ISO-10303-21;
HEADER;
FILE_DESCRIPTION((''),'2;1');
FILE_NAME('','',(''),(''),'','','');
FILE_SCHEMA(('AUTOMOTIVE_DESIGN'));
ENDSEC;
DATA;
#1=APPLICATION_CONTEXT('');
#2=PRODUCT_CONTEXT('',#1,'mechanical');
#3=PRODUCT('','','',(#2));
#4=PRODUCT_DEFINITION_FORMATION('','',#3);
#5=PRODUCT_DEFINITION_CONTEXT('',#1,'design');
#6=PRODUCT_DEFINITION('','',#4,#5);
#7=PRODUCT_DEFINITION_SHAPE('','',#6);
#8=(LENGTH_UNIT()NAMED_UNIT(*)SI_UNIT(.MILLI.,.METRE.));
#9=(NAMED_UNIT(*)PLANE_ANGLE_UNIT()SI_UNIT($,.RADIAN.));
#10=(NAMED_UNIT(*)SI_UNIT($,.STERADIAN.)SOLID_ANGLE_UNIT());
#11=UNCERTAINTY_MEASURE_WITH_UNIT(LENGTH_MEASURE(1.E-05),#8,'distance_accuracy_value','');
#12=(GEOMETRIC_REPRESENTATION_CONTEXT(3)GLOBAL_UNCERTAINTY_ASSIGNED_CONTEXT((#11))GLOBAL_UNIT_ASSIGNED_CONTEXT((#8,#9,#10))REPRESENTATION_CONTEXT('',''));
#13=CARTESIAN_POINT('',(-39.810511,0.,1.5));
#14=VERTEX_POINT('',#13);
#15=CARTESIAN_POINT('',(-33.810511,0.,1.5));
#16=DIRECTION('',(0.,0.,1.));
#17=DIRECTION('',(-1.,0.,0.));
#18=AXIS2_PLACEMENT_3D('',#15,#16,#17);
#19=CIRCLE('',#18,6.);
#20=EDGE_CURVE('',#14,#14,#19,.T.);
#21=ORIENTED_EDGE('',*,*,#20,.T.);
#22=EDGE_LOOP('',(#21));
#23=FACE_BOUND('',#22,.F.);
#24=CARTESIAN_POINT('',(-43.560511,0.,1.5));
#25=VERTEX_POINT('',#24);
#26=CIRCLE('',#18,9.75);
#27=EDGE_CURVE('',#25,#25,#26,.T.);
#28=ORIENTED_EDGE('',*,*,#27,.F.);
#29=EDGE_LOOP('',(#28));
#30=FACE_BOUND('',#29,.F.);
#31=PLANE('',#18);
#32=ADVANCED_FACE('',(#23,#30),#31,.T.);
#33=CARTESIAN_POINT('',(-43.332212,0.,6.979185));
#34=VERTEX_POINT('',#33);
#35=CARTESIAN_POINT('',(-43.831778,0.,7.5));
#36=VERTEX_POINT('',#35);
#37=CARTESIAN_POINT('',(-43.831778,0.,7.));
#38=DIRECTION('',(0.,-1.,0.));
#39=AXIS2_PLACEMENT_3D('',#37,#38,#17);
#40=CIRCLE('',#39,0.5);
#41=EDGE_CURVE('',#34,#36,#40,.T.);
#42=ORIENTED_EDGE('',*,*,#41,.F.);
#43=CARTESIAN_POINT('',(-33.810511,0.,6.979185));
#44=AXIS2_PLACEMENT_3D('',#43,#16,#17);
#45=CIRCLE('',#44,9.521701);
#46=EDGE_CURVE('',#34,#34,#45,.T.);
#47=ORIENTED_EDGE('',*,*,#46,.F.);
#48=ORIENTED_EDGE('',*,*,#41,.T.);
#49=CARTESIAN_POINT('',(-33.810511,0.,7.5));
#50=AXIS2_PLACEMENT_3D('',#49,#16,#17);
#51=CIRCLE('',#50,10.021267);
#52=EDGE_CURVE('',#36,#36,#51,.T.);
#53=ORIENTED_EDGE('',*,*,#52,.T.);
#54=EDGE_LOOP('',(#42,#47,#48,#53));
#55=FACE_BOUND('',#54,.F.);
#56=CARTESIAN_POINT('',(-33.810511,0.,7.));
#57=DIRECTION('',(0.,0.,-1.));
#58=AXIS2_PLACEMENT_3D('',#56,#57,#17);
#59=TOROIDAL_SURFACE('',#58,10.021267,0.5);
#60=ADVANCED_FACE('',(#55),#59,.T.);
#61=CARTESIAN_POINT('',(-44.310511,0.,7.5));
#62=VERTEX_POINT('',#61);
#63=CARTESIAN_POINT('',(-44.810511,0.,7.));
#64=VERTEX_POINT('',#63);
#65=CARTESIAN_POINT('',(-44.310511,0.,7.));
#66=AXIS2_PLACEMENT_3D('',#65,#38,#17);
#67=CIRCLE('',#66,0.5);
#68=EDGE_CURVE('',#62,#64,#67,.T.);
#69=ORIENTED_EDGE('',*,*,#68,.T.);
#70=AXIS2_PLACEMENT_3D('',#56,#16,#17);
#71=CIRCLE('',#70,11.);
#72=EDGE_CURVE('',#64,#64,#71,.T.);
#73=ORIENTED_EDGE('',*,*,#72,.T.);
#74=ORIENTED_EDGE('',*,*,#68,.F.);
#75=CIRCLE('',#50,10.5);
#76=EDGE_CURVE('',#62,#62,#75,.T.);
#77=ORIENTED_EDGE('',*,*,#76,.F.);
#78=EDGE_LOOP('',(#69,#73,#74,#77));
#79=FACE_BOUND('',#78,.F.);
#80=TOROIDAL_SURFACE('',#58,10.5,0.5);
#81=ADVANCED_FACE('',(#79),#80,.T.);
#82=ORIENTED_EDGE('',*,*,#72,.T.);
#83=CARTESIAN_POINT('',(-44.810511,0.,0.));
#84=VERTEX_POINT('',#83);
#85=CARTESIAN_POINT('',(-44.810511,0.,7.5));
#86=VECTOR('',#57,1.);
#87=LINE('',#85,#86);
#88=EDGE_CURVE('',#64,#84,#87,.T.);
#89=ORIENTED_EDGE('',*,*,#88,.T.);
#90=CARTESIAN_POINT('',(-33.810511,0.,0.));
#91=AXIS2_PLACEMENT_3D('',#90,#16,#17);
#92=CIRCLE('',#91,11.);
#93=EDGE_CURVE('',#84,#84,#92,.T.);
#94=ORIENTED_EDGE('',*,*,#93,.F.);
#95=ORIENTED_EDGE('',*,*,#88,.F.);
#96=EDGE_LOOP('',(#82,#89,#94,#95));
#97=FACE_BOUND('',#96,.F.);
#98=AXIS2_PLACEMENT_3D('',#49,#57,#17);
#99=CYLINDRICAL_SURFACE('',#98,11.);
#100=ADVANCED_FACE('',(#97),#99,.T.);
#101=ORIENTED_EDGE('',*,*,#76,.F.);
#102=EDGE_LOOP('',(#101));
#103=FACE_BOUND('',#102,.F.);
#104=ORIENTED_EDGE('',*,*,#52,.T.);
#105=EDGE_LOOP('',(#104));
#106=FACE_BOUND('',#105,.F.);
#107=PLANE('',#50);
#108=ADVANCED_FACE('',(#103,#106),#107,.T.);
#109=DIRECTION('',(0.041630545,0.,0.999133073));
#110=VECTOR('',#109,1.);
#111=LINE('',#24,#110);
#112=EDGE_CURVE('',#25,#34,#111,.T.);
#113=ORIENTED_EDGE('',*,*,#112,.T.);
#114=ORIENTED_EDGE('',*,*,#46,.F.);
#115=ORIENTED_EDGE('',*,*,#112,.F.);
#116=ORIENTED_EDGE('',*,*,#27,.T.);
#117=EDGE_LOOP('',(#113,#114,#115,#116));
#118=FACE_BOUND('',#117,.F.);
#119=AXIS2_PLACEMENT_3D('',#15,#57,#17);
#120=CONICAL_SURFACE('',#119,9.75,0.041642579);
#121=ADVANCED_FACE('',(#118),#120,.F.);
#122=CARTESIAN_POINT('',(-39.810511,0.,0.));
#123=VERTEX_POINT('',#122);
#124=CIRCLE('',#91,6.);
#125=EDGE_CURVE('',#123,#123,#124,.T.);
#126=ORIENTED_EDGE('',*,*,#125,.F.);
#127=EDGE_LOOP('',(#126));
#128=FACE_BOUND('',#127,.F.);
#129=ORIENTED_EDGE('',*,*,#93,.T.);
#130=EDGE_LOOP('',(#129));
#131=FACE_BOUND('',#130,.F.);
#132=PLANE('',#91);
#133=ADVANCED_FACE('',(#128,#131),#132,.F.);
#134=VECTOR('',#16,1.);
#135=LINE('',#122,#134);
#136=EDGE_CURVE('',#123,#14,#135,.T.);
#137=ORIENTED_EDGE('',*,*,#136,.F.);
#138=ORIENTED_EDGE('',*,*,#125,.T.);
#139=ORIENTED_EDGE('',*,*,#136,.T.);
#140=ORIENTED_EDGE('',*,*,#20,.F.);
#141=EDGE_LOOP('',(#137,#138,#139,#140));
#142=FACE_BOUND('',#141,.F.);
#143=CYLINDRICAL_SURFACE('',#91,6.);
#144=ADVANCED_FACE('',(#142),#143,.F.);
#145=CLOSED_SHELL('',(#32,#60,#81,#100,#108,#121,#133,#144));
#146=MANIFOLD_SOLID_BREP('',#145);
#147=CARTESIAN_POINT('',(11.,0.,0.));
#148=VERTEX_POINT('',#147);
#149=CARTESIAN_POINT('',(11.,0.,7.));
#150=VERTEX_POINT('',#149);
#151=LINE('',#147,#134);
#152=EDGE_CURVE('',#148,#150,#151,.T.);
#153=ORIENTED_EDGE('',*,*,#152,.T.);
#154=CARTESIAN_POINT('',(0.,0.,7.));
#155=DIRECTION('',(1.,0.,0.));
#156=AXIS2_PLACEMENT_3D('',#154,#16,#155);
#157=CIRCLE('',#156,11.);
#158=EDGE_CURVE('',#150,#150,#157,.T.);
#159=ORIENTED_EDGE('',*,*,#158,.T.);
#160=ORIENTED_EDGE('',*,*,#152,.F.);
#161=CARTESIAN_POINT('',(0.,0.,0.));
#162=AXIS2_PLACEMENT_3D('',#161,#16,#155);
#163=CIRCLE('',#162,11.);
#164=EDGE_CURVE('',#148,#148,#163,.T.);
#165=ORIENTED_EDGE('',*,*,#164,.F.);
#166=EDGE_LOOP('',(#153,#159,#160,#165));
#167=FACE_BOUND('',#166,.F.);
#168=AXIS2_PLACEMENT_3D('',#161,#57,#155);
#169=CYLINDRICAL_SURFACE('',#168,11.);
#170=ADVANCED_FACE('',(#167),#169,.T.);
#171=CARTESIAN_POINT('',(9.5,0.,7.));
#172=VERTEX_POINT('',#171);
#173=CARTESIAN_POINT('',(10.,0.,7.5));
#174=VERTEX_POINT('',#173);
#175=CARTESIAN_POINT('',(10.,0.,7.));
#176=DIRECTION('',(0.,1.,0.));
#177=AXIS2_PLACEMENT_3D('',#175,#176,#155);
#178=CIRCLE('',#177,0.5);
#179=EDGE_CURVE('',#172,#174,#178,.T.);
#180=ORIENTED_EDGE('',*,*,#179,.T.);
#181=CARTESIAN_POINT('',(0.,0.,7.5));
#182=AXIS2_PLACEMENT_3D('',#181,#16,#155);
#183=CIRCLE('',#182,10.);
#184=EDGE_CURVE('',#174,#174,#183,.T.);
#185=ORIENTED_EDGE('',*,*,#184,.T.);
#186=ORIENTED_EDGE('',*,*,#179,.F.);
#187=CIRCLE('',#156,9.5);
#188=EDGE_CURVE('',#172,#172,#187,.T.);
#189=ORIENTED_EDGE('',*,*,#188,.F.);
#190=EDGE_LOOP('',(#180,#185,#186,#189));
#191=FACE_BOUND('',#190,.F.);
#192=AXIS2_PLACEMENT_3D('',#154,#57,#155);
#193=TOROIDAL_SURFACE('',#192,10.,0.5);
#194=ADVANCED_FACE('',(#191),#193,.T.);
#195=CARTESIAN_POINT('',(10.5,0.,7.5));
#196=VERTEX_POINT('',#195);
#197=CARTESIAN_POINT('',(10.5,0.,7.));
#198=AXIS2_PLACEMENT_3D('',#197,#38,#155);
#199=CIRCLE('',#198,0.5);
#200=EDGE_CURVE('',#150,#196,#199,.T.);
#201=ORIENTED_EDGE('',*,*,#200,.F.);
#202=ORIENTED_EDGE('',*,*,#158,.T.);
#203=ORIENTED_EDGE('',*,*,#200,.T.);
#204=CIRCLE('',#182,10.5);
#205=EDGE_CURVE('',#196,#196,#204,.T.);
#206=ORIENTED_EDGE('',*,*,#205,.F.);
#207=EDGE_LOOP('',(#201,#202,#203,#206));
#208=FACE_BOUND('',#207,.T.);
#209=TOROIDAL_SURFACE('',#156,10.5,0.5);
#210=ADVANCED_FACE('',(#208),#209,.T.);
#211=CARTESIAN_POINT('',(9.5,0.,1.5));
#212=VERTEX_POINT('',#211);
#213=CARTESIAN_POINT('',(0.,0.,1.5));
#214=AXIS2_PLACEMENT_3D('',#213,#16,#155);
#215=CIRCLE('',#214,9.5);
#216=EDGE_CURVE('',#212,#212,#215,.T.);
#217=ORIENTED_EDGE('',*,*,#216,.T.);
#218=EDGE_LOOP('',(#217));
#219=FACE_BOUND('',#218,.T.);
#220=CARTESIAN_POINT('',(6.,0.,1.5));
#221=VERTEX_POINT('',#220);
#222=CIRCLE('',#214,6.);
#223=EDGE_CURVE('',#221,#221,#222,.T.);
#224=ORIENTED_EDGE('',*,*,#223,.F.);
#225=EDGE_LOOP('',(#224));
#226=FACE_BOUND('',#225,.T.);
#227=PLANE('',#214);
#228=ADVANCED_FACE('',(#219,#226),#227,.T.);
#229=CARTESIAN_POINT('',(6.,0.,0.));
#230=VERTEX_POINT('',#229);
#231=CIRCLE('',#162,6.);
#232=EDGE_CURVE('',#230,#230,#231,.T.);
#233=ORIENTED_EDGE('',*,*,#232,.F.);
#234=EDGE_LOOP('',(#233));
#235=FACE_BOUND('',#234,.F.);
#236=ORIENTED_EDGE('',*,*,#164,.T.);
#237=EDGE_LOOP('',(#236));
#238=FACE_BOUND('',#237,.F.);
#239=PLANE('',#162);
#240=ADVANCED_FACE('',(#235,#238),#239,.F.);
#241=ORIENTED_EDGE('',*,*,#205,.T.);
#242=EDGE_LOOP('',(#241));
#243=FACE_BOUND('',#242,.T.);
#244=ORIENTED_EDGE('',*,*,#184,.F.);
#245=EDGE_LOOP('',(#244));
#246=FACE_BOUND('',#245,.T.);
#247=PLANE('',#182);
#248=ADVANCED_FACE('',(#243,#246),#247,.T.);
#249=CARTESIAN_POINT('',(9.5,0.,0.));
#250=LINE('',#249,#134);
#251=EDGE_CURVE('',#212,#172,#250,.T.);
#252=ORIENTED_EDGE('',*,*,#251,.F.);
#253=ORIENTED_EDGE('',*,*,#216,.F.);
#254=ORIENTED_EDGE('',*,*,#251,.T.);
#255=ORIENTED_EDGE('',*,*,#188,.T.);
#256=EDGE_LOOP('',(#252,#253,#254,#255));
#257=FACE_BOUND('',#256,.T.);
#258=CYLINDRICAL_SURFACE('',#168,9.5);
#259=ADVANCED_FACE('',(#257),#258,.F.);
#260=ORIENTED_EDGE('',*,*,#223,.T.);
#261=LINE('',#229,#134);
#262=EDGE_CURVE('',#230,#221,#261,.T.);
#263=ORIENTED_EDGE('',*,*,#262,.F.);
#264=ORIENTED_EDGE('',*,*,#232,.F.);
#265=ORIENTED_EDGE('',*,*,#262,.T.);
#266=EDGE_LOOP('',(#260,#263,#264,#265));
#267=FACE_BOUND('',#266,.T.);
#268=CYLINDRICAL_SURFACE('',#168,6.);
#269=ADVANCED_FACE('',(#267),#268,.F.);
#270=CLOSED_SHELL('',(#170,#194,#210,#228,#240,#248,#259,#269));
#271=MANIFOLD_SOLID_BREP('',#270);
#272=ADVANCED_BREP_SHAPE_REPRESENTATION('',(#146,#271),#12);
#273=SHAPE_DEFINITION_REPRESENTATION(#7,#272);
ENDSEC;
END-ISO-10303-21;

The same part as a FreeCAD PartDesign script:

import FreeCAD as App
import Part
import Sketcher


def edges_at(feature, points):
    """Names of the edges that pass closest to the given points."""
    edges = feature.Shape.Edges
    near = lambda p: min(range(len(edges)), key=lambda i: edges[i].distToShape(Part.Vertex(*p))[0])
    return sorted({f"Edge{near(p) + 1}" for p in points})


def add_polygon(sketch, points):
    """Adds a closed chain of lines whose ends are joined by coincident constraints."""
    first, n = sketch.GeometryCount, len(points)
    for a, b in zip(points, points[1:] + points[:1]):
        sketch.addGeometry(Part.LineSegment(App.Vector(*a, 0), App.Vector(*b, 0)), False)
    for i in range(n):
        sketch.addConstraint(Sketcher.Constraint("Coincident", first + i, 2, first + (i + 1) % n, 1))

doc = App.newDocument("Part")
body = doc.addObject("PartDesign::Body", "Body")

# Sketch on XY plane
sketch1 = body.newObject("Sketcher::SketchObject", "Sketch")
sketch1.AttachmentSupport = (doc.getObject("XY_Plane"), [""])
sketch1.MapMode = "FlatFace"
sketch1.addGeometry([
    Part.Circle(App.Vector(0, 0, 0), App.Vector(0, 0, 1), 11),
    Part.Circle(App.Vector(0, 0, 0), App.Vector(0, 0, 1), 10),
], False)
sketch1.addConstraint([
    Sketcher.Constraint("Coincident", 0, 3, -1, 1),
    Sketcher.Constraint("Coincident", 1, 3, -1, 1),
    Sketcher.Constraint("Diameter", 0, 22.0),
    Sketcher.Constraint("Diameter", 1, 19.0),
])
pad1 = body.newObject("PartDesign::Pad", "Pad")
pad1.Profile = sketch1
pad1.Length = 7.5

# Sketch on XY plane
sketch2 = body.newObject("Sketcher::SketchObject", "Sketch001")
sketch2.AttachmentSupport = (doc.getObject("XY_Plane"), [""])
sketch2.MapMode = "FlatFace"
sketch2.addGeometry([
    Part.Circle(App.Vector(0, 0, 0), App.Vector(0, 0, 1), 10),
    Part.Circle(App.Vector(0, 0, 0), App.Vector(0, 0, 1), 6),
], False)
sketch2.addConstraint([
    Sketcher.Constraint("Coincident", 0, 3, -1, 1),
    Sketcher.Constraint("Coincident", 1, 3, -1, 1),
    Sketcher.Constraint("Diameter", 0, 19.0),
    Sketcher.Constraint("Diameter", 1, 12.0),
])
pad2 = body.newObject("PartDesign::Pad", "Pad001")
pad2.Profile = sketch2
pad2.Length = 1.5
doc.recompute()

fillet = body.newObject("PartDesign::Fillet", "Fillet")
fillet.Base = (pad2, edges_at(pad2, [(-11, 0, 7.5), (-9.5, 0, 7.5)]))
fillet.Radius = 0.5
body2 = doc.addObject("PartDesign::Body", "Body001")

# Sketch on XZ plane
sketch3 = body2.newObject("Sketcher::SketchObject", "Sketch002")
sketch3.AttachmentSupport = (doc.getObject("XZ_Plane001"), [""])
sketch3.MapMode = "FlatFace"
add_polygon(sketch3, [(-43.6, 1.5), (-43.3, 7.5), (-44.8, 7.5), (-44.8, 0), (-39.8, 0), (-39.8, 1.5)])  # lines 0-5
sketch3.addGeometry(Part.LineSegment(App.Vector(-33.8, 0, 0), App.Vector(-33.8, 7.5, 0)), True)  # axis
sketch3.addConstraint([
    Sketcher.Constraint("Horizontal", 1),
    Sketcher.Constraint("Vertical", 2),
    Sketcher.Constraint("Horizontal", 3),
    Sketcher.Constraint("Vertical", 4),
    Sketcher.Constraint("Horizontal", 5),
    Sketcher.Constraint("Vertical", 6),
    Sketcher.Constraint("PointOnObject", 2, 2, -1),
    Sketcher.Constraint("PointOnObject", 6, 1, -1),
    Sketcher.Constraint("Horizontal", 1, 2, 6, 2),
    Sketcher.Constraint("Equal", 1, 4),
    Sketcher.Constraint("DistanceX", 3, 1, 3, 2, 5.0),
    Sketcher.Constraint("DistanceX", 1, 2, 1, 1, 1.5),
    Sketcher.Constraint("DistanceY", 2, 2, 2, 1, 7.5),
    Sketcher.Constraint("DistanceX", 3, 2, 6, 1, 6.0),
    Sketcher.Constraint("DistanceX", 5, 2, 5, 1, 3.75),
    Sketcher.Constraint("DistanceX", 0, 2, -1, 1, 43.310511),
])
revolution = body2.newObject("PartDesign::Revolution", "Revolution")
revolution.Profile = sketch3
revolution.ReferenceAxis = (sketch3, ["Axis0"])
revolution.Angle = 360
doc.recompute()

fillet2 = body2.newObject("PartDesign::Fillet", "Fillet001")
fillet2.Base = (revolution, edges_at(revolution, [(-22.811, 0, 7.5), (-24.311, 0, 7.5)]))
fillet2.Radius = 0.5

doc.recompute()
